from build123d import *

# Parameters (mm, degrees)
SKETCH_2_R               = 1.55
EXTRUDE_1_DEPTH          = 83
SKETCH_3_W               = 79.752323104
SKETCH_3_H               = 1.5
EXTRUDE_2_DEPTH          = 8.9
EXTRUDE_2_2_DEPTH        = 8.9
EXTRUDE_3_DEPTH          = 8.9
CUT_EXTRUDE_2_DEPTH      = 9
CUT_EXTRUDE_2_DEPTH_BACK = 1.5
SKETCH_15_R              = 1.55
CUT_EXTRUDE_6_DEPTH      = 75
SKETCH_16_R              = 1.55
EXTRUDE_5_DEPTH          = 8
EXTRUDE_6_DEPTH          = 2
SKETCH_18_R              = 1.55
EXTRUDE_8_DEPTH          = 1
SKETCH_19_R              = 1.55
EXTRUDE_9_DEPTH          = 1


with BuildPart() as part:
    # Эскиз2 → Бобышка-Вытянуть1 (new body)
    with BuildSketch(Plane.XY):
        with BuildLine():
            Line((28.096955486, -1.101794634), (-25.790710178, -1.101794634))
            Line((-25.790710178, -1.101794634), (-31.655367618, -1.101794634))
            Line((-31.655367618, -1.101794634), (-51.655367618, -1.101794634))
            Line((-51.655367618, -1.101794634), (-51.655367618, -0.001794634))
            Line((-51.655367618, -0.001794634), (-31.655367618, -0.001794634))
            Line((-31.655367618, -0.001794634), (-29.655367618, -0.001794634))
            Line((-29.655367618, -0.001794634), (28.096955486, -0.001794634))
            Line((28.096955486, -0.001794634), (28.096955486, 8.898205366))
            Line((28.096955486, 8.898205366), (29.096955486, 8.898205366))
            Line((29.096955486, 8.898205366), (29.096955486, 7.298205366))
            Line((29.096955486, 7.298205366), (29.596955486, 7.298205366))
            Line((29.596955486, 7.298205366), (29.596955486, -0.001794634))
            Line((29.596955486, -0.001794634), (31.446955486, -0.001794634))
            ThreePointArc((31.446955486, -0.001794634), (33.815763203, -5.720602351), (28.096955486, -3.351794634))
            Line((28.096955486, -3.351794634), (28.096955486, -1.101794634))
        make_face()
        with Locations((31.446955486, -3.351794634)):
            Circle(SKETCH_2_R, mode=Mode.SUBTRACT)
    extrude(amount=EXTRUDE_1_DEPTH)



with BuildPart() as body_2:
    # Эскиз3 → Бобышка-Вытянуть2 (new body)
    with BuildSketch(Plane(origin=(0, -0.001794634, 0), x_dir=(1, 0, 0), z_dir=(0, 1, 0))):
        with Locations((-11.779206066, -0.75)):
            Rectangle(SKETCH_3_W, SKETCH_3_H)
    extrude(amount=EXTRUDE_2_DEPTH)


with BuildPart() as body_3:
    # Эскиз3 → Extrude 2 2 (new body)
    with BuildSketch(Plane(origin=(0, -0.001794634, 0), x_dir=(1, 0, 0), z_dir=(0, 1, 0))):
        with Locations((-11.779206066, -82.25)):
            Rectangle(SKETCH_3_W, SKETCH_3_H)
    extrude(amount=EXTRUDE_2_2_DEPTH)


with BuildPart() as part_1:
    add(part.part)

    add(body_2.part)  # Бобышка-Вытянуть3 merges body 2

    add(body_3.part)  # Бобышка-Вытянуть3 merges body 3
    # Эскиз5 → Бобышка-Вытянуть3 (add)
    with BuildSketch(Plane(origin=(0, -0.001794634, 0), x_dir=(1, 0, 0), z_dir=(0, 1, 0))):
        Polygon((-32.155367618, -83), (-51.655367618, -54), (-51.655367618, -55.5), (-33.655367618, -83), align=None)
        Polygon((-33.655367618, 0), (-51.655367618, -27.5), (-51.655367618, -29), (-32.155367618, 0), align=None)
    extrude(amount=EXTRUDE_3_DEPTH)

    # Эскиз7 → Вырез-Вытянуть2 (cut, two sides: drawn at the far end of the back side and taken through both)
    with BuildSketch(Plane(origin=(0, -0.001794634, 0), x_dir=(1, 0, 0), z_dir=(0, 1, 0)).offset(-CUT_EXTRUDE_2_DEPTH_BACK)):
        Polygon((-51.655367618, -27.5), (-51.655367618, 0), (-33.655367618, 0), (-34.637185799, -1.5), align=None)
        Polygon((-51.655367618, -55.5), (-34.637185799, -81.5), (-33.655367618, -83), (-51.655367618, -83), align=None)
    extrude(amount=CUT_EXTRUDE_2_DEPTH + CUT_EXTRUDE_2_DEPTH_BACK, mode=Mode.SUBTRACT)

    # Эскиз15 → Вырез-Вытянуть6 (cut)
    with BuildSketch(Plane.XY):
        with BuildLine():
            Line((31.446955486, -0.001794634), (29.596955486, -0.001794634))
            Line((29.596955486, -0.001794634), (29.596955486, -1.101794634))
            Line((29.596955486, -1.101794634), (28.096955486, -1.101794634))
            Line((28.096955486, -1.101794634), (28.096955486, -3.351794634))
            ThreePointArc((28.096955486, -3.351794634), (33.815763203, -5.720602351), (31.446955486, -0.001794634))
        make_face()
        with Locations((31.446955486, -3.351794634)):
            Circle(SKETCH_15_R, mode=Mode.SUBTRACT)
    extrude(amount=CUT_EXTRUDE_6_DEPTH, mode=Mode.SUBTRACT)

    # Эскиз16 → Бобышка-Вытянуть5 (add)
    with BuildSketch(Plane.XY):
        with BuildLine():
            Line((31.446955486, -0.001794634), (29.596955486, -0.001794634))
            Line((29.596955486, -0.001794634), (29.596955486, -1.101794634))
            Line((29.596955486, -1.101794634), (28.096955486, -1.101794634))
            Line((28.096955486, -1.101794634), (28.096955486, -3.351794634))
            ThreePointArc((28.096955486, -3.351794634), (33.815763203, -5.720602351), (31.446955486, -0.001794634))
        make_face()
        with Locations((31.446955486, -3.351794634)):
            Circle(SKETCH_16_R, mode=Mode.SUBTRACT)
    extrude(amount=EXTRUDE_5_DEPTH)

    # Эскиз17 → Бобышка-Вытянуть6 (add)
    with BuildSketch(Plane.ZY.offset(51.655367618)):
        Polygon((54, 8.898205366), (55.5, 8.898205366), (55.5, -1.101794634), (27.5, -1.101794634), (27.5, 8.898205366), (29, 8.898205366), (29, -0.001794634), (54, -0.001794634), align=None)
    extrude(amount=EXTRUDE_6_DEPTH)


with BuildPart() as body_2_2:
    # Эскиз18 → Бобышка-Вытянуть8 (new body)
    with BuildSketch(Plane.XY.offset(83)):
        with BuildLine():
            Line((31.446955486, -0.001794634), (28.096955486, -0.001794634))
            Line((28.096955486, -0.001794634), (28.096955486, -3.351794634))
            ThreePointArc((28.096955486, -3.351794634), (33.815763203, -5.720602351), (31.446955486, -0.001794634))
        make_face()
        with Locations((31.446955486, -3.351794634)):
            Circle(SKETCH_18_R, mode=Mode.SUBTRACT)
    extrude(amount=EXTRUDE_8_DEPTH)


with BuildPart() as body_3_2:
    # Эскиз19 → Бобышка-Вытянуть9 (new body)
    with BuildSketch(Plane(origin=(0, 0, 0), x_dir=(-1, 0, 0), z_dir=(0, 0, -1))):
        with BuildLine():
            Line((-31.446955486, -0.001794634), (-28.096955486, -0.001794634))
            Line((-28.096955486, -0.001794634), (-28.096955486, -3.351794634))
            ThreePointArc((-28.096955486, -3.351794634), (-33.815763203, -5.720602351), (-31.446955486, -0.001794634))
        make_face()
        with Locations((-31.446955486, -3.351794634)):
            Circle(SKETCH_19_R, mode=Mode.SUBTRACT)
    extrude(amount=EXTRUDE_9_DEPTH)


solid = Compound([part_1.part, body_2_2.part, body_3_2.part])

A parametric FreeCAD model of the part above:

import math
import FreeCAD as App
import Part
import Sketcher

V = App.Vector


def add_polygon(sketch, points):
    """Adds a closed chain of lines whose ends are joined by coincident constraints."""
    first, n = sketch.GeometryCount, len(points)
    for a, b in zip(points, points[1:] + points[:1]):
        sketch.addGeometry(Part.LineSegment(App.Vector(*a, 0), App.Vector(*b, 0)), False)
    for i in range(n):
        sketch.addConstraint(Sketcher.Constraint("Coincident", first + i, 2, first + (i + 1) % n, 1))

doc = App.newDocument("Part")
body = doc.addObject("PartDesign::Body", "Body")

sketch1 = doc.addObject("Sketcher::SketchObject", "Sketch")
body.addObject(sketch1)
sketch1.AttachmentSupport = (doc.XY_Plane, [""])
sketch1.MapMode = "FlatFace"
sketch1.addGeometry([
    Part.LineSegment(V(-51.7, -1.1, 0), V(28.1, -1.1, 0)),
    Part.LineSegment(V(28.1, -1.1, 0), V(28.1, -3.4, 0)),
    Part.ArcOfCircle(Part.Circle(V(31.4, -3.4, 0), V(0, 0, 1), 3.4), math.radians(180), math.radians(450)),
    Part.LineSegment(V(31.4, 0, 0), V(29.6, 0, 0)),
    Part.LineSegment(V(29.6, 0, 0), V(29.6, 7.3, 0)),
    Part.LineSegment(V(29.6, 7.3, 0), V(29.1, 7.3, 0)),
    Part.LineSegment(V(29.1, 7.3, 0), V(29.1, 8.9, 0)),
    Part.LineSegment(V(29.1, 8.9, 0), V(28.1, 8.9, 0)),
    Part.LineSegment(V(28.1, 8.9, 0), V(28.1, 0, 0)),
    Part.LineSegment(V(28.1, 0, 0), V(-51.7, 0, 0)),
    Part.LineSegment(V(-51.7, 0, 0), V(-51.7, -1.1, 0)),
    Part.Circle(V(31.4, -3.4, 0), V(0, 0, 1), 1.6),
], False)
sketch1.addConstraint([
    Sketcher.Constraint("Coincident", 0, 2, 1, 1),
    Sketcher.Constraint("Tangent", 1, 2, 2, 1),
    Sketcher.Constraint("Tangent", 2, 2, 3, 1),
    Sketcher.Constraint("Coincident", 3, 2, 4, 1),
    Sketcher.Constraint("Coincident", 4, 2, 5, 1),
    Sketcher.Constraint("Coincident", 5, 2, 6, 1),
    Sketcher.Constraint("Coincident", 6, 2, 7, 1),
    Sketcher.Constraint("Coincident", 7, 2, 8, 1),
    Sketcher.Constraint("Coincident", 8, 2, 9, 1),
    Sketcher.Constraint("Coincident", 9, 2, 10, 1),
    Sketcher.Constraint("Coincident", 10, 2, 0, 1),
    Sketcher.Constraint("Horizontal", 0),
    Sketcher.Constraint("Vertical", 1),
    Sketcher.Constraint("Horizontal", 3),
    Sketcher.Constraint("Vertical", 4),
    Sketcher.Constraint("Horizontal", 5),
    Sketcher.Constraint("Vertical", 6),
    Sketcher.Constraint("Horizontal", 7),
    Sketcher.Constraint("Vertical", 8),
    Sketcher.Constraint("Horizontal", 9),
    Sketcher.Constraint("Vertical", 10),
    Sketcher.Constraint("Coincident", 11, 3, 2, 3),
    Sketcher.Constraint("Horizontal", 3, 2, 8, 2),
    Sketcher.Constraint("Vertical", 1, 2, 7, 2),
    Sketcher.Constraint("Diameter", 11, 3.1),
    Sketcher.Constraint("DistanceX", 7, 2, 7, 1, 1.0),
    Sketcher.Constraint("Radius", 2, 3.35),
    Sketcher.Constraint("DistanceX", 5, 2, 5, 1, 0.5),
    Sketcher.Constraint("DistanceY", 4, 1, 4, 2, 7.3),
    Sketcher.Constraint("DistanceY", 6, 1, 6, 2, 1.6),
    Sketcher.Constraint("DistanceY", 10, 2, 10, 1, 1.1),
    Sketcher.Constraint("DistanceX", 0, 1, 0, 2, 79.752323),
    Sketcher.Constraint("DistanceX", -1, 1, 2, 3, 31.446955),
    Sketcher.Constraint("DistanceY", 2, 3, -1, 1, 3.351795),
])
pad1 = doc.addObject("PartDesign::Pad", "Pad")
body.addObject(pad1)
pad1.Profile = sketch1
pad1.Length = 83
body2 = doc.addObject("PartDesign::Body", "Body001")

sketch2 = doc.addObject("Sketcher::SketchObject", "Sketch001")
body2.addObject(sketch2)
sketch2.AttachmentSupport = (doc.getObject("XZ_Plane001"), [""])
sketch2.MapMode = "FlatFace"
sketch2.AttachmentOffset = App.Placement(V(0, 0, 0.001795), App.Rotation())
add_polygon(sketch2, [(-51.7, 0), (-51.7, 1.5), (28.1, 1.5), (28.1, 0)])
sketch2.addConstraint([
    Sketcher.Constraint("Vertical", 0),
    Sketcher.Constraint("Horizontal", 1),
    Sketcher.Constraint("Vertical", 2),
    Sketcher.Constraint("Horizontal", 3),
    Sketcher.Constraint("PointOnObject", 2, 2, -1),
    Sketcher.Constraint("DistanceY", 0, 1, 0, 2, 1.5),
    Sketcher.Constraint("DistanceX", 1, 1, 1, 2, 79.752323),
    Sketcher.Constraint("DistanceX", 0, 2, -1, 1, 51.655368),
])
pad2 = doc.addObject("PartDesign::Pad", "Pad001")
body2.addObject(pad2)
pad2.Profile = sketch2
pad2.Length = 8.9
pad2.Reversed = True
body3 = doc.addObject("PartDesign::Body", "Body002")

sketch3 = doc.addObject("Sketcher::SketchObject", "Sketch002")
body3.addObject(sketch3)
sketch3.AttachmentSupport = (doc.getObject("XZ_Plane002"), [""])
sketch3.MapMode = "FlatFace"
sketch3.AttachmentOffset = App.Placement(V(0, 0, 0.001795), App.Rotation())
add_polygon(sketch3, [(-51.7, 81.5), (-51.7, 83), (28.1, 83), (28.1, 81.5)])
sketch3.addConstraint([
    Sketcher.Constraint("Vertical", 0),
    Sketcher.Constraint("Horizontal", 1),
    Sketcher.Constraint("Vertical", 2),
    Sketcher.Constraint("Horizontal", 3),
    Sketcher.Constraint("DistanceY", 0, 1, 0, 2, 1.5),
    Sketcher.Constraint("DistanceY", -1, 1, 0, 2, 83.0),
    Sketcher.Constraint("DistanceX", 1, 1, 1, 2, 79.752323),
    Sketcher.Constraint("DistanceX", 0, 2, -1, 1, 51.655368),
])
pad3 = doc.addObject("PartDesign::Pad", "Pad002")
body3.addObject(pad3)
pad3.Profile = sketch3
pad3.Length = 8.9
pad3.Reversed = True
doc.recompute()

boolean = doc.addObject("PartDesign::Boolean", "Boolean")
body.addObject(boolean)
boolean.Type = "Fuse"
boolean.addObjects([body2])
doc.recompute()

boolean2 = doc.addObject("PartDesign::Boolean", "Boolean001")
body.addObject(boolean2)
boolean2.Type = "Fuse"
boolean2.addObjects([body3])

sketch4 = doc.addObject("Sketcher::SketchObject", "Sketch003")
body.addObject(sketch4)
sketch4.AttachmentSupport = (doc.XZ_Plane, [""])
sketch4.MapMode = "FlatFace"
sketch4.AttachmentOffset = App.Placement(V(0, 0, 0.001795), App.Rotation())
add_polygon(sketch4, [(-32.2, 83), (-51.7, 54), (-51.7, 55.5), (-33.7, 83)])
add_polygon(sketch4, [(-33.7, 0), (-51.7, 27.5), (-51.7, 29), (-32.2, 0)])
sketch4.addConstraint([
    Sketcher.Constraint("Vertical", 1),
    Sketcher.Constraint("Horizontal", 3),
    Sketcher.Constraint("Vertical", 5),
    Sketcher.Constraint("Horizontal", 7),
    Sketcher.Constraint("PointOnObject", 6, 2, -1),
    Sketcher.Constraint("Vertical", 1, 2, 4, 2),
    Sketcher.Constraint("Vertical", 3, 2, 6, 2),
    Sketcher.Constraint("Vertical", 2, 2, 7, 2),
    Sketcher.Constraint("Equal", 7, 1),
    Sketcher.Constraint("Equal", 1, 5),
    Sketcher.Constraint("Equal", 2, 4),
    Sketcher.Constraint("DistanceX", 3, 1, 3, 2, 1.5),
    Sketcher.Constraint("DistanceY", -1, 1, 0, 2, 54.0),
    Sketcher.Constraint("DistanceY", -1, 1, 2, 2, 83.0),
    Sketcher.Constraint("DistanceX", 1, 2, 2, 2, 18.0),
    Sketcher.Constraint("DistanceX", 0, 2, -1, 1, 51.655368),
])
pad4 = doc.addObject("PartDesign::Pad", "Pad003")
body.addObject(pad4)
pad4.Profile = sketch4
pad4.Length = 8.9
pad4.Reversed = True

sketch5 = doc.addObject("Sketcher::SketchObject", "Sketch004")
body.addObject(sketch5)
sketch5.AttachmentSupport = (doc.XZ_Plane, [""])
sketch5.MapMode = "FlatFace"
sketch5.AttachmentOffset = App.Placement(V(0, 0, 0.001795), App.Rotation())
add_polygon(sketch5, [(-51.7, 0), (-51.7, 27.5), (-34.6, 1.5), (-33.7, 0)])
add_polygon(sketch5, [(-34.6, 81.5), (-51.7, 55.5), (-51.7, 83), (-33.7, 83)])
sketch5.addConstraint([
    Sketcher.Constraint("Vertical", 0),
    Sketcher.Constraint("Horizontal", 3),
    Sketcher.Constraint("Vertical", 5),
    Sketcher.Constraint("Horizontal", 6),
    Sketcher.Constraint("PointOnObject", 2, 2, -1),
    Sketcher.Constraint("Parallel", 1, 2),
    Sketcher.Constraint("Parallel", 4, 7),
    Sketcher.Constraint("Vertical", 3, 2, 4, 2),
    Sketcher.Constraint("Vertical", 2, 2, 6, 2),
    Sketcher.Constraint("Vertical", 1, 2, 7, 2),
    Sketcher.Constraint("Equal", 0, 5),
    Sketcher.Constraint("DistanceX", 3, 2, 3, 1, 18.0),
    Sketcher.Constraint("DistanceY", 0, 1, 0, 2, 27.5),
    Sketcher.Constraint("DistanceY", -1, 1, 5, 2, 83.0),
    Sketcher.Constraint("DistanceY", 1, 2, 0, 2, 26.0),
    Sketcher.Constraint("DistanceX", 0, 2, -1, 1, 51.655368),
])
pocket1 = doc.addObject("PartDesign::Pocket", "Pocket")
body.addObject(pocket1)
pocket1.Profile = sketch5
pocket1.Type = "ThroughAll"
pocket1.Midplane = True

sketch6 = doc.addObject("Sketcher::SketchObject", "Sketch005")
body.addObject(sketch6)
sketch6.AttachmentSupport = (doc.XY_Plane, [""])
sketch6.MapMode = "FlatFace"
sketch6.addGeometry([
    Part.LineSegment(V(31.4, 0, 0), V(29.6, 0, 0)),
    Part.LineSegment(V(29.6, 0, 0), V(29.6, -1.1, 0)),
    Part.LineSegment(V(29.6, -1.1, 0), V(28.1, -1.1, 0)),
    Part.LineSegment(V(28.1, -1.1, 0), V(28.1, -3.4, 0)),
    Part.ArcOfCircle(Part.Circle(V(31.4, -3.4, 0), V(0, 0, 1), 3.4), math.radians(180), math.radians(450)),
    Part.Circle(V(31.4, -3.4, 0), V(0, 0, 1), 1.6),
], False)
sketch6.addConstraint([
    Sketcher.Constraint("Coincident", 0, 2, 1, 1),
    Sketcher.Constraint("Coincident", 1, 2, 2, 1),
    Sketcher.Constraint("Coincident", 2, 2, 3, 1),
    Sketcher.Constraint("Tangent", 3, 2, 4, 1),
    Sketcher.Constraint("Tangent", 4, 2, 0, 1),
    Sketcher.Constraint("Horizontal", 0),
    Sketcher.Constraint("Vertical", 1),
    Sketcher.Constraint("Horizontal", 2),
    Sketcher.Constraint("Vertical", 3),
    Sketcher.Constraint("Coincident", 5, 3, 4, 3),
    Sketcher.Constraint("Diameter", 5, 3.1),
    Sketcher.Constraint("Radius", 4, 3.35),
    Sketcher.Constraint("DistanceX", 2, 2, 2, 1, 1.5),
    Sketcher.Constraint("DistanceY", 1, 2, 1, 1, 1.1),
    Sketcher.Constraint("DistanceX", -1, 1, 4, 3, 31.446955),
    Sketcher.Constraint("DistanceY", 4, 3, -1, 1, 3.351795),
])
pocket2 = doc.addObject("PartDesign::Pocket", "Pocket001")
body.addObject(pocket2)
pocket2.Profile = sketch6
pocket2.Length = 75
pocket2.Reversed = True

sketch7 = doc.addObject("Sketcher::SketchObject", "Sketch006")
body.addObject(sketch7)
sketch7.AttachmentSupport = (doc.XY_Plane, [""])
sketch7.MapMode = "FlatFace"
sketch7.addGeometry([
    Part.LineSegment(V(31.4, 0, 0), V(29.6, 0, 0)),
    Part.LineSegment(V(29.6, 0, 0), V(29.6, -1.1, 0)),
    Part.LineSegment(V(29.6, -1.1, 0), V(28.1, -1.1, 0)),
    Part.LineSegment(V(28.1, -1.1, 0), V(28.1, -3.4, 0)),
    Part.ArcOfCircle(Part.Circle(V(31.4, -3.4, 0), V(0, 0, 1), 3.4), math.radians(180), math.radians(450)),
    Part.Circle(V(31.4, -3.4, 0), V(0, 0, 1), 1.6),
], False)
sketch7.addConstraint([
    Sketcher.Constraint("Coincident", 0, 2, 1, 1),
    Sketcher.Constraint("Coincident", 1, 2, 2, 1),
    Sketcher.Constraint("Coincident", 2, 2, 3, 1),
    Sketcher.Constraint("Tangent", 3, 2, 4, 1),
    Sketcher.Constraint("Tangent", 4, 2, 0, 1),
    Sketcher.Constraint("Horizontal", 0),
    Sketcher.Constraint("Vertical", 1),
    Sketcher.Constraint("Horizontal", 2),
    Sketcher.Constraint("Vertical", 3),
    Sketcher.Constraint("Coincident", 5, 3, 4, 3),
    Sketcher.Constraint("Diameter", 5, 3.1),
    Sketcher.Constraint("Radius", 4, 3.35),
    Sketcher.Constraint("DistanceX", 2, 2, 2, 1, 1.5),
    Sketcher.Constraint("DistanceY", 1, 2, 1, 1, 1.1),
    Sketcher.Constraint("DistanceX", -1, 1, 4, 3, 31.446955),
    Sketcher.Constraint("DistanceY", 4, 3, -1, 1, 3.351795),
])
pad5 = doc.addObject("PartDesign::Pad", "Pad004")
body.addObject(pad5)
pad5.Profile = sketch7
pad5.Length = 8

sketch8 = doc.addObject("Sketcher::SketchObject", "Sketch007")
body.addObject(sketch8)
sketch8.AttachmentSupport = (doc.YZ_Plane, [""])
sketch8.MapMode = "FlatFace"
sketch8.AttachmentOffset = App.Placement(V(0, 0, -51.655368), App.Rotation())
add_polygon(sketch8, [(8.9, 55.5), (8.9, 54), (0, 54), (0, 29), (8.9, 29), (8.9, 27.5), (-1.1, 27.5), (-1.1, 55.5)])
sketch8.addConstraint([
    Sketcher.Constraint("Vertical", 0),
    Sketcher.Constraint("Horizontal", 1),
    Sketcher.Constraint("Vertical", 2),
    Sketcher.Constraint("Horizontal", 3),
    Sketcher.Constraint("Vertical", 4),
    Sketcher.Constraint("Horizontal", 5),
    Sketcher.Constraint("Vertical", 6),
    Sketcher.Constraint("Horizontal", 7),
    Sketcher.Constraint("Vertical", 0, 2, 3, 2),
    Sketcher.Constraint("Equal", 0, 4),
    Sketcher.Constraint("DistanceX", 5, 2, 5, 1, 10.0),
    Sketcher.Constraint("DistanceY", 2, 2, 2, 1, 25.0),
    Sketcher.Constraint("DistanceY", 6, 1, 6, 2, 28.0),
    Sketcher.Constraint("DistanceX", 1, 2, 1, 1, 8.9),
    Sketcher.Constraint("DistanceY", -1, 1, 0, 2, 54.0),
    Sketcher.Constraint("DistanceX", -1, 1, 0, 2, 8.898205),
])
pad6 = doc.addObject("PartDesign::Pad", "Pad005")
body.addObject(pad6)
pad6.Profile = sketch8
pad6.Length = 2
pad6.Reversed = True
body4 = doc.addObject("PartDesign::Body", "Body003")

sketch9 = doc.addObject("Sketcher::SketchObject", "Sketch008")
body4.addObject(sketch9)
sketch9.AttachmentSupport = (doc.getObject("XY_Plane003"), [""])
sketch9.MapMode = "FlatFace"
sketch9.AttachmentOffset = App.Placement(V(0, 0, 83), App.Rotation())
sketch9.addGeometry([
    Part.LineSegment(V(31.4, 0, 0), V(28.1, 0, 0)),
    Part.LineSegment(V(28.1, 0, 0), V(28.1, -3.4, 0)),
    Part.ArcOfCircle(Part.Circle(V(31.4, -3.4, 0), V(0, 0, 1), 3.4), math.radians(180), math.radians(450)),
    Part.Circle(V(31.4, -3.4, 0), V(0, 0, 1), 1.6),
], False)
sketch9.addConstraint([
    Sketcher.Constraint("Coincident", 0, 2, 1, 1),
    Sketcher.Constraint("Tangent", 1, 2, 2, 1),
    Sketcher.Constraint("Tangent", 2, 2, 0, 1),
    Sketcher.Constraint("Horizontal", 0),
    Sketcher.Constraint("Vertical", 1),
    Sketcher.Constraint("Coincident", 3, 3, 2, 3),
    Sketcher.Constraint("Diameter", 3, 3.1),
    Sketcher.Constraint("Radius", 2, 3.35),
    Sketcher.Constraint("DistanceX", -1, 1, 2, 3, 31.446955),
    Sketcher.Constraint("DistanceY", 2, 3, -1, 1, 3.351795),
])
pad7 = doc.addObject("PartDesign::Pad", "Pad006")
body4.addObject(pad7)
pad7.Profile = sketch9
pad7.Length = 1
body5 = doc.addObject("PartDesign::Body", "Body004")

sketch10 = doc.addObject("Sketcher::SketchObject", "Sketch009")
body5.addObject(sketch10)
sketch10.AttachmentSupport = (doc.getObject("XY_Plane004"), [""])
sketch10.MapMode = "FlatFace"
sketch10.addGeometry([
    Part.LineSegment(V(28.1, 0, 0), V(31.4, 0, 0)),
    Part.ArcOfCircle(Part.Circle(V(31.4, -3.4, 0), V(0, 0, 1), 3.4), math.radians(180), math.radians(450)),
    Part.LineSegment(V(28.1, -3.4, 0), V(28.1, 0, 0)),
    Part.Circle(V(31.4, -3.4, 0), V(0, 0, 1), 1.6),
], False)
sketch10.addConstraint([
    Sketcher.Constraint("Tangent", 0, 2, 1, 2),
    Sketcher.Constraint("Tangent", 1, 1, 2, 1),
    Sketcher.Constraint("Coincident", 2, 2, 0, 1),
    Sketcher.Constraint("Horizontal", 0),
    Sketcher.Constraint("Vertical", 2),
    Sketcher.Constraint("Coincident", 3, 3, 1, 3),
    Sketcher.Constraint("Diameter", 3, 3.1),
    Sketcher.Constraint("Radius", 1, 3.35),
    Sketcher.Constraint("DistanceX", -1, 1, 1, 3, 31.446955),
    Sketcher.Constraint("DistanceY", 1, 3, -1, 1, 3.351795),
])
pad8 = doc.addObject("PartDesign::Pad", "Pad007")
body5.addObject(pad8)
pad8.Profile = sketch10
pad8.Length = 1
pad8.Reversed = True

doc.recompute()
